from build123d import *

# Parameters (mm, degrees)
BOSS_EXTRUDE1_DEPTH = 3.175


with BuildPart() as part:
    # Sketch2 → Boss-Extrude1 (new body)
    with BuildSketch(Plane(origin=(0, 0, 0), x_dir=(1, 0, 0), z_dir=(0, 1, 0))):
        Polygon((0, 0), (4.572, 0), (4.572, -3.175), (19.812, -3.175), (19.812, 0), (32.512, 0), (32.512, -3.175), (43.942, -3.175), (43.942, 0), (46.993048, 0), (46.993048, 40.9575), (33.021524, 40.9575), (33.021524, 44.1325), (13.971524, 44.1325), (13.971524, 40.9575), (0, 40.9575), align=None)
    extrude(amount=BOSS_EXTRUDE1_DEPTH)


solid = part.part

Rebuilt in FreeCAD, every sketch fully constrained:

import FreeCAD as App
import Part
import Sketcher

V = App.Vector
Q = App.Units.Quantity


def add_polygon(sketch, points):
    """Adds a closed chain of lines whose ends are joined by coincident constraints."""
    first, n = sketch.GeometryCount, len(points)
    for a, b in zip(points, points[1:] + points[:1]):
        sketch.addGeometry(Part.LineSegment(App.Vector(*a, 0), App.Vector(*b, 0)), False)
    for i in range(n):
        sketch.addConstraint(Sketcher.Constraint("Coincident", first + i, 2, first + (i + 1) % n, 1))

doc = App.newDocument("Part")
params = doc.addObject("Spreadsheet::Sheet", "Params")
for row, (alias, value) in enumerate([
    ("sketch1_width", "0.6 in"),
    ("sketch1_width2", "0.5 in"),
    ("sketch1_width3", "0.18 in"),
    ("sketch1_width4", "0.45 in"),
    ("sketch1_width5", "0.75 in"),
    ("pad1_length", "0.125 in"),
], start=1):
    params.set(f"A{row}", alias)
    params.set(f"B{row}", "=" + value)
    params.setAlias(f"B{row}", alias)

body = doc.addObject("PartDesign::Body", "Body")

# Sketch on XZ plane
sketch1 = doc.addObject("Sketcher::SketchObject", "Sketch")
body.addObject(sketch1)
sketch1.AttachmentSupport = (doc.XZ_Plane, [""])
sketch1.MapMode = "FlatFace"
add_polygon(sketch1, [(0, 0), (4.572, 0), (4.572, 3.175), (19.812, 3.175), (19.812, 0), (32.512, 0), (32.512, 3.175), (43.942, 3.175), (43.942, 0), (46.993048, 0), (46.993048, -40.9575), (33.021524, -40.9575), (33.021524, -44.1325), (13.971524, -44.1325), (13.971524, -40.9575), (0, -40.9575)])  # lines 0-15
sketch1.addConstraint([
    Sketcher.Constraint("Horizontal", 0),
    Sketcher.Constraint("Vertical", 1),
    Sketcher.Constraint("Horizontal", 2),
    Sketcher.Constraint("Vertical", 3),
    Sketcher.Constraint("Horizontal", 4),
    Sketcher.Constraint("Vertical", 5),
    Sketcher.Constraint("Horizontal", 6),
    Sketcher.Constraint("Vertical", 7),
    Sketcher.Constraint("Horizontal", 8),
    Sketcher.Constraint("Vertical", 9),
    Sketcher.Constraint("Horizontal", 10),
    Sketcher.Constraint("Vertical", 11),
    Sketcher.Constraint("Horizontal", 12),
    Sketcher.Constraint("Vertical", 13),
    Sketcher.Constraint("Horizontal", 14),
    Sketcher.Constraint("Vertical", 15),
    Sketcher.Constraint("Coincident", 15, 2, -1, 1),
    Sketcher.Constraint("PointOnObject", 3, 2, -1),
    Sketcher.Constraint("PointOnObject", 7, 2, -1),
    Sketcher.Constraint("Horizontal", 2, 2, 5, 2),
    Sketcher.Constraint("Horizontal", 10, 2, 13, 2),
    Sketcher.Constraint("Equal", 10, 14),
    Sketcher.Constraint("Equal", 7, 11),
    Sketcher.Constraint("DistanceX", 2, 1, 2, 2, Q("0.6 in")),
    Sketcher.Constraint("DistanceX", 4, 1, 4, 2, Q("0.5 in")),
    Sketcher.Constraint("DistanceX", 0, 1, 0, 2, Q("0.18 in")),
    Sketcher.Constraint("DistanceX", 6, 1, 6, 2, Q("0.45 in")),
    Sketcher.Constraint("DistanceX", 12, 2, 12, 1, Q("0.75 in")),
    Sketcher.Constraint("DistanceY", 1, 1, 1, 2, Q("0.125 in")),
    Sketcher.Constraint("DistanceY", 9, 2, 9, 1, Q("1.6125 in")),
    Sketcher.Constraint("DistanceX", 8, 1, 8, 2, Q("3.051048 mm")),
])
sketch1.setExpression("Constraints[39]", "Params.sketch1_width")
sketch1.setExpression("Constraints[40]", "Params.sketch1_width2")
sketch1.setExpression("Constraints[41]", "Params.sketch1_width3")
sketch1.setExpression("Constraints[42]", "Params.sketch1_width4")
sketch1.setExpression("Constraints[43]", "Params.sketch1_width5")
pad1 = doc.addObject("PartDesign::Pad", "Pad")
body.addObject(pad1)
pad1.Profile = sketch1
pad1.setExpression("Length", "Params.pad1_length")
pad1.Reversed = True

doc.recompute()
